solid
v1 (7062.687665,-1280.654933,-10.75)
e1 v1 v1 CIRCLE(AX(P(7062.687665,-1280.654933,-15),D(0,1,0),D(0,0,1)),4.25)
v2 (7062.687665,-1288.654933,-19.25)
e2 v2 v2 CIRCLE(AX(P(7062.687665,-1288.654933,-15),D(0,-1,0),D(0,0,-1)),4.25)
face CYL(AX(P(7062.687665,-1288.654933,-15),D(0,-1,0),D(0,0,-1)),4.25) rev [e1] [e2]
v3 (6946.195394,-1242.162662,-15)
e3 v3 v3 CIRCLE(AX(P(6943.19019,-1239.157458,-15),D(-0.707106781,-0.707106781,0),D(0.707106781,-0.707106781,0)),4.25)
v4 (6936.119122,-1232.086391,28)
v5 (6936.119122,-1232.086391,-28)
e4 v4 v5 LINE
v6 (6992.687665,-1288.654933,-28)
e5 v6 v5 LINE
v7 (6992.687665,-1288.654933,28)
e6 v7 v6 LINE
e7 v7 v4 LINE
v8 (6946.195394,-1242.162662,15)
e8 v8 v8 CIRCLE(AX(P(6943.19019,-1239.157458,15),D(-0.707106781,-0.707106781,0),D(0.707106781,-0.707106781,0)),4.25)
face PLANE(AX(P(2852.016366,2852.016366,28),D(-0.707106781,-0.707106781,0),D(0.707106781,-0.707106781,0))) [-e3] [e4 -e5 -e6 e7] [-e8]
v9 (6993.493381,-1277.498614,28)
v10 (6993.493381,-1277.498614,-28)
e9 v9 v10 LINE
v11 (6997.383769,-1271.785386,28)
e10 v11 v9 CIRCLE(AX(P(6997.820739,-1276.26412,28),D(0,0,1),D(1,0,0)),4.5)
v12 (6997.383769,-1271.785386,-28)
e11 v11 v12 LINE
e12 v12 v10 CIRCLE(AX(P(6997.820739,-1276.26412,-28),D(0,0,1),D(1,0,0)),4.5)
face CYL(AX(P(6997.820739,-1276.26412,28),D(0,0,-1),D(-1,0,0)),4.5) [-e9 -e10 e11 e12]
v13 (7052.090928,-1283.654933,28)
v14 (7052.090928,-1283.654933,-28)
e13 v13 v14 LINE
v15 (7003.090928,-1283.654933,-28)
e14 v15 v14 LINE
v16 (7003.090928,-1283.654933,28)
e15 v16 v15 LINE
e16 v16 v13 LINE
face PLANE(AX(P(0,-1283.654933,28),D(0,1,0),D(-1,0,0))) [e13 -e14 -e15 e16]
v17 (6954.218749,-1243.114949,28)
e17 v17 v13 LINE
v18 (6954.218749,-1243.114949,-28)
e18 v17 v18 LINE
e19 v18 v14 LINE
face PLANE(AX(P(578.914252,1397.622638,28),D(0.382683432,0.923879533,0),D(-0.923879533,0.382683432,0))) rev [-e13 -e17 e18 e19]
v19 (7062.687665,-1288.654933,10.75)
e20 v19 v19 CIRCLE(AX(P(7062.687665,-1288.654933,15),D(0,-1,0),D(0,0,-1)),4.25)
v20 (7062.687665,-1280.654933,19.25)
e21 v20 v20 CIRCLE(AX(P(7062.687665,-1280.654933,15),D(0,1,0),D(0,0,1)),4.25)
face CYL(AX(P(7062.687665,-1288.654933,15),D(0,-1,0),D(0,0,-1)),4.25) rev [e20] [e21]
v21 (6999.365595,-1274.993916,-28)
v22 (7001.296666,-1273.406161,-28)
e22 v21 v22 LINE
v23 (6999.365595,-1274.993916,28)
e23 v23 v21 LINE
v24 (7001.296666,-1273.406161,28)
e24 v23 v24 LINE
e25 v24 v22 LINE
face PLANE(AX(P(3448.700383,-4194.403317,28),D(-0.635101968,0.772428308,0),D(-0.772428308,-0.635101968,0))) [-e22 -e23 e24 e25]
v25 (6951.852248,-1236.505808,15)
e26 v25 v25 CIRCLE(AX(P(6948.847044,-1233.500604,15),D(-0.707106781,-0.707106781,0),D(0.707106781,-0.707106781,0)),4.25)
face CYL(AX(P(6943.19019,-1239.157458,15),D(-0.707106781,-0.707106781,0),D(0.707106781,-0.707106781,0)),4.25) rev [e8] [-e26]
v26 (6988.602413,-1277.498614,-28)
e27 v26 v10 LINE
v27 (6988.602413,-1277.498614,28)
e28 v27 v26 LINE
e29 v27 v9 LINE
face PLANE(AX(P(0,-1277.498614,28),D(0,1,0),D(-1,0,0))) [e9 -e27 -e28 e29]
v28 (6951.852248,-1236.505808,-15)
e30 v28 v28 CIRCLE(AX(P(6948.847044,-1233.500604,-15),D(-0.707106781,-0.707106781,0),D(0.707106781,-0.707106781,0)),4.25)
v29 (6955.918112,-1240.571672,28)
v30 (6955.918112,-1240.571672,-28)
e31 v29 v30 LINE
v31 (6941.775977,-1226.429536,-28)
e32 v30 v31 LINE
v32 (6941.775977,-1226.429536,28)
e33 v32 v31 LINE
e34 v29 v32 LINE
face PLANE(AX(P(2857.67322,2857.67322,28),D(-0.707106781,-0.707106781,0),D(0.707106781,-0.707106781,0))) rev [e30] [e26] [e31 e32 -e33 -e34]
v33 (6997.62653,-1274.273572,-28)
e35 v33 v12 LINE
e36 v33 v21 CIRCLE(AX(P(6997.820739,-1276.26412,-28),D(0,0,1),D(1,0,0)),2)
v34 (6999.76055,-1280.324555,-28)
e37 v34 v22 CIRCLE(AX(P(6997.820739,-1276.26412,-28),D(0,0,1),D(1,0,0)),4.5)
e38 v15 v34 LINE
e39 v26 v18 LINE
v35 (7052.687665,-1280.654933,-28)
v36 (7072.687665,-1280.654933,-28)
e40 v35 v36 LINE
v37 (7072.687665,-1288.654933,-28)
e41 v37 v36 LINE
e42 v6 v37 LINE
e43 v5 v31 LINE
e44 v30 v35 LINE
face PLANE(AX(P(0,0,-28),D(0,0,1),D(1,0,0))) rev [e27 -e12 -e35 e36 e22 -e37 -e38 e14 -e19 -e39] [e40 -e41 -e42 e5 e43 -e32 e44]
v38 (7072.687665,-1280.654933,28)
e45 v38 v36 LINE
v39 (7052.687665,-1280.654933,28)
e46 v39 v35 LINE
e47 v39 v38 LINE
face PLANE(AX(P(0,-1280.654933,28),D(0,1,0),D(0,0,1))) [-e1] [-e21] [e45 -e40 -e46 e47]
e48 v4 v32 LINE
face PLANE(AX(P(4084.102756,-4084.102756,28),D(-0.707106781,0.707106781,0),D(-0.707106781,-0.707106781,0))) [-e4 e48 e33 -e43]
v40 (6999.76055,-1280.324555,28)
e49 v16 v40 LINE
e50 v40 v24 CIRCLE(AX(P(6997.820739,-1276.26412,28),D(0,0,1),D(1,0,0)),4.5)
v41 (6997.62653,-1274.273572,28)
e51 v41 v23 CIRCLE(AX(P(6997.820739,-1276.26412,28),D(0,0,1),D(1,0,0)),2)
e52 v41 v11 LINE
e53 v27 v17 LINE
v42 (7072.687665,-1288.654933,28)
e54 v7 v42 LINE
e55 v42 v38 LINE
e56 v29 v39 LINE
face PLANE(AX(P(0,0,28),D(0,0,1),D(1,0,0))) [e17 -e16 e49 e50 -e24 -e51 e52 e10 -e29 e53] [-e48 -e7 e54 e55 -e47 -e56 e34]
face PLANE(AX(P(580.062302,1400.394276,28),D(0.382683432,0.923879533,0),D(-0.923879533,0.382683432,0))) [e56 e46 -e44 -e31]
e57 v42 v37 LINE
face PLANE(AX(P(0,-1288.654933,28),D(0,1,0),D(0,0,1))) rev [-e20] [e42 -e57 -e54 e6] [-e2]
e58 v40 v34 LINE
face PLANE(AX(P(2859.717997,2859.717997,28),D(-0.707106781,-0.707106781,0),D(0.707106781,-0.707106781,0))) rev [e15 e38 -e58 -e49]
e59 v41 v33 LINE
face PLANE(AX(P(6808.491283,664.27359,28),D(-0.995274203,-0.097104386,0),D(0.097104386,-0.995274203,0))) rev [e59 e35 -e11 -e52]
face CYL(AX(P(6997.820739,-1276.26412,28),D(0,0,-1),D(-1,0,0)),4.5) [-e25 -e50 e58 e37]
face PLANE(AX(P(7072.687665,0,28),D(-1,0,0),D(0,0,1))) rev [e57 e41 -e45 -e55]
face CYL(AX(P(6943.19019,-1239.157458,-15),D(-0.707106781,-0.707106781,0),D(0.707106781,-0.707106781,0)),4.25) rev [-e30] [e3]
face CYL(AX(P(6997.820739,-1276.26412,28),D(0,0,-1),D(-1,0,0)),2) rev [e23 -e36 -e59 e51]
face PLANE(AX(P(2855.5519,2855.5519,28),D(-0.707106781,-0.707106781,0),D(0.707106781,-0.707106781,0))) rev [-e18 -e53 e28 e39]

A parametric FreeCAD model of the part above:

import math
import FreeCAD as App
import Part
import Sketcher
from FreeCAD import Vector
Q = App.Units.Quantity

doc = App.newDocument("Part")
body = doc.addObject("PartDesign::Body", "Body")

sketch1 = body.newObject("Sketcher::SketchObject", "Sketch")
sketch1.AttachmentSupport = (doc.getObject("XY_Plane"), [""])
sketch1.MapMode = "FlatFace"
sketch1.addGeometry([
    Part.LineSegment(Vector(6936.119122, -1232.086391, 0), Vector(6992.687665, -1288.654933, 0)),
    Part.LineSegment(Vector(6992.687665, -1288.654933, 0), Vector(7072.687665, -1288.654933, 0)),
    Part.LineSegment(Vector(7072.687665, -1288.654933, 0), Vector(7072.687665, -1280.654933, 0)),
    Part.LineSegment(Vector(7072.687665, -1280.654933, 0), Vector(7052.687665, -1280.654933, 0)),
    Part.LineSegment(Vector(7052.687665, -1280.654933, 0), Vector(6955.918112, -1240.571672, 0)),
    Part.LineSegment(Vector(6955.918112, -1240.571672, 0), Vector(6941.775977, -1226.429536, 0)),
    Part.LineSegment(Vector(6941.775977, -1226.429536, 0), Vector(6936.119122, -1232.086391, 0)),
    Part.LineSegment(Vector(7052.090928, -1283.654933, 0), Vector(7003.090928, -1283.654933, 0)),
    Part.LineSegment(Vector(7003.090928, -1283.654933, 0), Vector(6999.76055, -1280.324555, 0)),
    Part.ArcOfCircle(Part.Circle(Vector(6997.820739, -1276.26412, 0), Vector(0, 0, 1), 4.5), math.radians(-64.464573), math.radians(39.427548)),
    Part.LineSegment(Vector(7001.296666, -1273.406161, 0), Vector(6999.365595, -1274.993916, 0)),
    Part.ArcOfCircle(Part.Circle(Vector(6997.820739, -1276.26412, 0), Vector(0, 0, 1), 2), math.radians(95.572452), math.radians(399.427548)),
    Part.LineSegment(Vector(6997.62653, -1274.273572, 0), Vector(6997.383769, -1271.785386, 0)),
    Part.ArcOfCircle(Part.Circle(Vector(6997.820739, -1276.26412, 0), Vector(0, 0, 1), 4.5), math.radians(95.572452), math.radians(195.922205)),
    Part.LineSegment(Vector(6993.493381, -1277.498614, 0), Vector(6988.602413, -1277.498614, 0)),
    Part.LineSegment(Vector(6988.602413, -1277.498614, 0), Vector(6954.218749, -1243.114949, 0)),
    Part.LineSegment(Vector(6954.218749, -1243.114949, 0), Vector(7052.090928, -1283.654933, 0)),
], False)
sketch1.addConstraint([
    Sketcher.Constraint("Coincident", 0, 2, 1, 1),
    Sketcher.Constraint("Coincident", 1, 2, 2, 1),
    Sketcher.Constraint("Coincident", 2, 2, 3, 1),
    Sketcher.Constraint("Coincident", 3, 2, 4, 1),
    Sketcher.Constraint("Coincident", 4, 2, 5, 1),
    Sketcher.Constraint("Coincident", 5, 2, 6, 1),
    Sketcher.Constraint("Coincident", 6, 2, 0, 1),
    Sketcher.Constraint("Coincident", 7, 2, 8, 1),
    Sketcher.Constraint("Coincident", 8, 2, 9, 1),
    Sketcher.Constraint("Coincident", 9, 2, 10, 1),
    Sketcher.Constraint("Coincident", 10, 2, 11, 2),
    Sketcher.Constraint("Coincident", 11, 1, 12, 1),
    Sketcher.Constraint("Coincident", 12, 2, 13, 1),
    Sketcher.Constraint("Coincident", 13, 2, 14, 1),
    Sketcher.Constraint("Coincident", 14, 2, 15, 1),
    Sketcher.Constraint("Coincident", 15, 2, 16, 1),
    Sketcher.Constraint("Coincident", 16, 2, 7, 1),
    Sketcher.Constraint("Horizontal", 1),
    Sketcher.Constraint("Vertical", 2),
    Sketcher.Constraint("Horizontal", 3),
    Sketcher.Constraint("Horizontal", 7),
    Sketcher.Constraint("Horizontal", 14),
    Sketcher.Constraint("Coincident", 11, 3, 9, 3),
    Sketcher.Constraint("Coincident", 13, 3, 9, 3),
    Sketcher.Constraint("Equal", 9, 13),
    Sketcher.Constraint("Parallel", 0, 5),
    Sketcher.Constraint("Perpendicular", 5, 6),
    Sketcher.Constraint("Perpendicular", 6, 8),
    Sketcher.Constraint("Parallel", 8, 15),
    Sketcher.Constraint("Parallel", 4, 16),
    Sketcher.Constraint("Radius", 11, Q("2 mm")),
    Sketcher.Constraint("Radius", 9, Q("4.5 mm")),
    Sketcher.Constraint("DistanceX", 1, 1, 1, 2, Q("80 mm")),
    Sketcher.Constraint("DistanceX", 3, 2, 3, 1, Q("20 mm")),
    Sketcher.Constraint("DistanceX", 7, 2, 7, 1, Q("49 mm")),
    Sketcher.Constraint("DistanceY", 2, 1, 2, 2, Q("8 mm")),
    Sketcher.Constraint("Angle", 0, Q("-45 deg")),
    Sketcher.Constraint("Distance", 0, Q("80 mm")),
    Sketcher.Constraint("Distance", 5, Q("20 mm")),
    Sketcher.Constraint("Distance", 6, Q("8 mm")),
    Sketcher.Constraint("DistanceY", 0, 2, 7, 2, Q("5 mm")),
    Sketcher.Constraint("DistanceX", 14, 2, 14, 1, Q("4.890968 mm")),
    Sketcher.Constraint("DistanceX", -1, 1, 9, 3, Q("6997.820739 mm")),
    Sketcher.Constraint("DistanceY", 9, 3, -1, 1, Q("1276.26412 mm")),
    Sketcher.Constraint("DistanceY", 6, 2, -1, 1, Q("1232.086391 mm")),
    Sketcher.Constraint("DistanceX", -1, 1, 8, 2, Q("6999.76055 mm")),
    Sketcher.Constraint("DistanceY", 9, 2, -1, 1, Q("1273.406161 mm")),
    Sketcher.Constraint("DistanceX", -1, 1, 11, 1, Q("6997.62653 mm")),
    Sketcher.Constraint("DistanceX", -1, 1, 12, 2, Q("6997.383769 mm")),
    Sketcher.Constraint("DistanceX", -1, 1, 13, 2, Q("6993.493381 mm")),
    Sketcher.Constraint("DistanceX", 10, 2, 9, 2, Q("1.931071 mm")),
    Sketcher.Constraint("DistanceX", -1, 1, 0, 2, Q("6992.687665 mm")),
])
pad1 = body.newObject("PartDesign::Pad", "Pad")
pad1.Profile = sketch1
pad1.Length = 56
pad1.Midplane = True

sketch2 = body.newObject("Sketcher::SketchObject", "Sketch001")
sketch2.Placement = App.Placement(Vector(2852.016366, 2852.016366, 0), App.Rotation(Vector(0.707106781, -0.707106781, 0), Vector(0, 0, 0.999999999), Vector(-0.707106781, -0.707106781, 0), "ZXY"))
sketch2.addGeometry([
    Part.Circle(Vector(5785.793505, -15, 0), Vector(0, 0, 1), 4.25),
    Part.Circle(Vector(5785.793505, 15, 0), Vector(0, 0, 1), 4.25),
], False)
sketch2.addConstraint([
    Sketcher.Constraint("Equal", 0, 1),
    Sketcher.Constraint("Symmetric", 0, 3, 1, 3, -1),
    Sketcher.Constraint("Diameter", 0, Q("8.5 mm")),
    Sketcher.Constraint("DistanceY", 0, 3, -1, 1, Q("15 mm")),
    Sketcher.Constraint("DistanceX", -1, 1, 0, 3, Q("5785.793505 mm")),
])
doc.recompute()
hole = body.newObject("PartDesign::Hole", "Hole")
hole.Profile = sketch2
hole.ThreadType = "None"
hole.Diameter = 8.5
hole.DepthType = "ThroughAll"
doc.recompute()

datumplane = body.newObject("PartDesign::Plane", "DatumPlane")
datumplane.Placement = App.Placement(Vector(6424.240592, -2661.007577, 0), App.Rotation(Vector(0.382683432, 0.923879533, 0), Vector(0, 0, -1), Vector(-0.923879533, 0.382683432, 0), "ZXY"))
mirrored = body.newObject("PartDesign::Mirrored", "Mirrored")
mirrored.Originals = [hole]
mirrored.MirrorPlane = (datumplane, [""])
body.Tip = mirrored

doc.recompute()
